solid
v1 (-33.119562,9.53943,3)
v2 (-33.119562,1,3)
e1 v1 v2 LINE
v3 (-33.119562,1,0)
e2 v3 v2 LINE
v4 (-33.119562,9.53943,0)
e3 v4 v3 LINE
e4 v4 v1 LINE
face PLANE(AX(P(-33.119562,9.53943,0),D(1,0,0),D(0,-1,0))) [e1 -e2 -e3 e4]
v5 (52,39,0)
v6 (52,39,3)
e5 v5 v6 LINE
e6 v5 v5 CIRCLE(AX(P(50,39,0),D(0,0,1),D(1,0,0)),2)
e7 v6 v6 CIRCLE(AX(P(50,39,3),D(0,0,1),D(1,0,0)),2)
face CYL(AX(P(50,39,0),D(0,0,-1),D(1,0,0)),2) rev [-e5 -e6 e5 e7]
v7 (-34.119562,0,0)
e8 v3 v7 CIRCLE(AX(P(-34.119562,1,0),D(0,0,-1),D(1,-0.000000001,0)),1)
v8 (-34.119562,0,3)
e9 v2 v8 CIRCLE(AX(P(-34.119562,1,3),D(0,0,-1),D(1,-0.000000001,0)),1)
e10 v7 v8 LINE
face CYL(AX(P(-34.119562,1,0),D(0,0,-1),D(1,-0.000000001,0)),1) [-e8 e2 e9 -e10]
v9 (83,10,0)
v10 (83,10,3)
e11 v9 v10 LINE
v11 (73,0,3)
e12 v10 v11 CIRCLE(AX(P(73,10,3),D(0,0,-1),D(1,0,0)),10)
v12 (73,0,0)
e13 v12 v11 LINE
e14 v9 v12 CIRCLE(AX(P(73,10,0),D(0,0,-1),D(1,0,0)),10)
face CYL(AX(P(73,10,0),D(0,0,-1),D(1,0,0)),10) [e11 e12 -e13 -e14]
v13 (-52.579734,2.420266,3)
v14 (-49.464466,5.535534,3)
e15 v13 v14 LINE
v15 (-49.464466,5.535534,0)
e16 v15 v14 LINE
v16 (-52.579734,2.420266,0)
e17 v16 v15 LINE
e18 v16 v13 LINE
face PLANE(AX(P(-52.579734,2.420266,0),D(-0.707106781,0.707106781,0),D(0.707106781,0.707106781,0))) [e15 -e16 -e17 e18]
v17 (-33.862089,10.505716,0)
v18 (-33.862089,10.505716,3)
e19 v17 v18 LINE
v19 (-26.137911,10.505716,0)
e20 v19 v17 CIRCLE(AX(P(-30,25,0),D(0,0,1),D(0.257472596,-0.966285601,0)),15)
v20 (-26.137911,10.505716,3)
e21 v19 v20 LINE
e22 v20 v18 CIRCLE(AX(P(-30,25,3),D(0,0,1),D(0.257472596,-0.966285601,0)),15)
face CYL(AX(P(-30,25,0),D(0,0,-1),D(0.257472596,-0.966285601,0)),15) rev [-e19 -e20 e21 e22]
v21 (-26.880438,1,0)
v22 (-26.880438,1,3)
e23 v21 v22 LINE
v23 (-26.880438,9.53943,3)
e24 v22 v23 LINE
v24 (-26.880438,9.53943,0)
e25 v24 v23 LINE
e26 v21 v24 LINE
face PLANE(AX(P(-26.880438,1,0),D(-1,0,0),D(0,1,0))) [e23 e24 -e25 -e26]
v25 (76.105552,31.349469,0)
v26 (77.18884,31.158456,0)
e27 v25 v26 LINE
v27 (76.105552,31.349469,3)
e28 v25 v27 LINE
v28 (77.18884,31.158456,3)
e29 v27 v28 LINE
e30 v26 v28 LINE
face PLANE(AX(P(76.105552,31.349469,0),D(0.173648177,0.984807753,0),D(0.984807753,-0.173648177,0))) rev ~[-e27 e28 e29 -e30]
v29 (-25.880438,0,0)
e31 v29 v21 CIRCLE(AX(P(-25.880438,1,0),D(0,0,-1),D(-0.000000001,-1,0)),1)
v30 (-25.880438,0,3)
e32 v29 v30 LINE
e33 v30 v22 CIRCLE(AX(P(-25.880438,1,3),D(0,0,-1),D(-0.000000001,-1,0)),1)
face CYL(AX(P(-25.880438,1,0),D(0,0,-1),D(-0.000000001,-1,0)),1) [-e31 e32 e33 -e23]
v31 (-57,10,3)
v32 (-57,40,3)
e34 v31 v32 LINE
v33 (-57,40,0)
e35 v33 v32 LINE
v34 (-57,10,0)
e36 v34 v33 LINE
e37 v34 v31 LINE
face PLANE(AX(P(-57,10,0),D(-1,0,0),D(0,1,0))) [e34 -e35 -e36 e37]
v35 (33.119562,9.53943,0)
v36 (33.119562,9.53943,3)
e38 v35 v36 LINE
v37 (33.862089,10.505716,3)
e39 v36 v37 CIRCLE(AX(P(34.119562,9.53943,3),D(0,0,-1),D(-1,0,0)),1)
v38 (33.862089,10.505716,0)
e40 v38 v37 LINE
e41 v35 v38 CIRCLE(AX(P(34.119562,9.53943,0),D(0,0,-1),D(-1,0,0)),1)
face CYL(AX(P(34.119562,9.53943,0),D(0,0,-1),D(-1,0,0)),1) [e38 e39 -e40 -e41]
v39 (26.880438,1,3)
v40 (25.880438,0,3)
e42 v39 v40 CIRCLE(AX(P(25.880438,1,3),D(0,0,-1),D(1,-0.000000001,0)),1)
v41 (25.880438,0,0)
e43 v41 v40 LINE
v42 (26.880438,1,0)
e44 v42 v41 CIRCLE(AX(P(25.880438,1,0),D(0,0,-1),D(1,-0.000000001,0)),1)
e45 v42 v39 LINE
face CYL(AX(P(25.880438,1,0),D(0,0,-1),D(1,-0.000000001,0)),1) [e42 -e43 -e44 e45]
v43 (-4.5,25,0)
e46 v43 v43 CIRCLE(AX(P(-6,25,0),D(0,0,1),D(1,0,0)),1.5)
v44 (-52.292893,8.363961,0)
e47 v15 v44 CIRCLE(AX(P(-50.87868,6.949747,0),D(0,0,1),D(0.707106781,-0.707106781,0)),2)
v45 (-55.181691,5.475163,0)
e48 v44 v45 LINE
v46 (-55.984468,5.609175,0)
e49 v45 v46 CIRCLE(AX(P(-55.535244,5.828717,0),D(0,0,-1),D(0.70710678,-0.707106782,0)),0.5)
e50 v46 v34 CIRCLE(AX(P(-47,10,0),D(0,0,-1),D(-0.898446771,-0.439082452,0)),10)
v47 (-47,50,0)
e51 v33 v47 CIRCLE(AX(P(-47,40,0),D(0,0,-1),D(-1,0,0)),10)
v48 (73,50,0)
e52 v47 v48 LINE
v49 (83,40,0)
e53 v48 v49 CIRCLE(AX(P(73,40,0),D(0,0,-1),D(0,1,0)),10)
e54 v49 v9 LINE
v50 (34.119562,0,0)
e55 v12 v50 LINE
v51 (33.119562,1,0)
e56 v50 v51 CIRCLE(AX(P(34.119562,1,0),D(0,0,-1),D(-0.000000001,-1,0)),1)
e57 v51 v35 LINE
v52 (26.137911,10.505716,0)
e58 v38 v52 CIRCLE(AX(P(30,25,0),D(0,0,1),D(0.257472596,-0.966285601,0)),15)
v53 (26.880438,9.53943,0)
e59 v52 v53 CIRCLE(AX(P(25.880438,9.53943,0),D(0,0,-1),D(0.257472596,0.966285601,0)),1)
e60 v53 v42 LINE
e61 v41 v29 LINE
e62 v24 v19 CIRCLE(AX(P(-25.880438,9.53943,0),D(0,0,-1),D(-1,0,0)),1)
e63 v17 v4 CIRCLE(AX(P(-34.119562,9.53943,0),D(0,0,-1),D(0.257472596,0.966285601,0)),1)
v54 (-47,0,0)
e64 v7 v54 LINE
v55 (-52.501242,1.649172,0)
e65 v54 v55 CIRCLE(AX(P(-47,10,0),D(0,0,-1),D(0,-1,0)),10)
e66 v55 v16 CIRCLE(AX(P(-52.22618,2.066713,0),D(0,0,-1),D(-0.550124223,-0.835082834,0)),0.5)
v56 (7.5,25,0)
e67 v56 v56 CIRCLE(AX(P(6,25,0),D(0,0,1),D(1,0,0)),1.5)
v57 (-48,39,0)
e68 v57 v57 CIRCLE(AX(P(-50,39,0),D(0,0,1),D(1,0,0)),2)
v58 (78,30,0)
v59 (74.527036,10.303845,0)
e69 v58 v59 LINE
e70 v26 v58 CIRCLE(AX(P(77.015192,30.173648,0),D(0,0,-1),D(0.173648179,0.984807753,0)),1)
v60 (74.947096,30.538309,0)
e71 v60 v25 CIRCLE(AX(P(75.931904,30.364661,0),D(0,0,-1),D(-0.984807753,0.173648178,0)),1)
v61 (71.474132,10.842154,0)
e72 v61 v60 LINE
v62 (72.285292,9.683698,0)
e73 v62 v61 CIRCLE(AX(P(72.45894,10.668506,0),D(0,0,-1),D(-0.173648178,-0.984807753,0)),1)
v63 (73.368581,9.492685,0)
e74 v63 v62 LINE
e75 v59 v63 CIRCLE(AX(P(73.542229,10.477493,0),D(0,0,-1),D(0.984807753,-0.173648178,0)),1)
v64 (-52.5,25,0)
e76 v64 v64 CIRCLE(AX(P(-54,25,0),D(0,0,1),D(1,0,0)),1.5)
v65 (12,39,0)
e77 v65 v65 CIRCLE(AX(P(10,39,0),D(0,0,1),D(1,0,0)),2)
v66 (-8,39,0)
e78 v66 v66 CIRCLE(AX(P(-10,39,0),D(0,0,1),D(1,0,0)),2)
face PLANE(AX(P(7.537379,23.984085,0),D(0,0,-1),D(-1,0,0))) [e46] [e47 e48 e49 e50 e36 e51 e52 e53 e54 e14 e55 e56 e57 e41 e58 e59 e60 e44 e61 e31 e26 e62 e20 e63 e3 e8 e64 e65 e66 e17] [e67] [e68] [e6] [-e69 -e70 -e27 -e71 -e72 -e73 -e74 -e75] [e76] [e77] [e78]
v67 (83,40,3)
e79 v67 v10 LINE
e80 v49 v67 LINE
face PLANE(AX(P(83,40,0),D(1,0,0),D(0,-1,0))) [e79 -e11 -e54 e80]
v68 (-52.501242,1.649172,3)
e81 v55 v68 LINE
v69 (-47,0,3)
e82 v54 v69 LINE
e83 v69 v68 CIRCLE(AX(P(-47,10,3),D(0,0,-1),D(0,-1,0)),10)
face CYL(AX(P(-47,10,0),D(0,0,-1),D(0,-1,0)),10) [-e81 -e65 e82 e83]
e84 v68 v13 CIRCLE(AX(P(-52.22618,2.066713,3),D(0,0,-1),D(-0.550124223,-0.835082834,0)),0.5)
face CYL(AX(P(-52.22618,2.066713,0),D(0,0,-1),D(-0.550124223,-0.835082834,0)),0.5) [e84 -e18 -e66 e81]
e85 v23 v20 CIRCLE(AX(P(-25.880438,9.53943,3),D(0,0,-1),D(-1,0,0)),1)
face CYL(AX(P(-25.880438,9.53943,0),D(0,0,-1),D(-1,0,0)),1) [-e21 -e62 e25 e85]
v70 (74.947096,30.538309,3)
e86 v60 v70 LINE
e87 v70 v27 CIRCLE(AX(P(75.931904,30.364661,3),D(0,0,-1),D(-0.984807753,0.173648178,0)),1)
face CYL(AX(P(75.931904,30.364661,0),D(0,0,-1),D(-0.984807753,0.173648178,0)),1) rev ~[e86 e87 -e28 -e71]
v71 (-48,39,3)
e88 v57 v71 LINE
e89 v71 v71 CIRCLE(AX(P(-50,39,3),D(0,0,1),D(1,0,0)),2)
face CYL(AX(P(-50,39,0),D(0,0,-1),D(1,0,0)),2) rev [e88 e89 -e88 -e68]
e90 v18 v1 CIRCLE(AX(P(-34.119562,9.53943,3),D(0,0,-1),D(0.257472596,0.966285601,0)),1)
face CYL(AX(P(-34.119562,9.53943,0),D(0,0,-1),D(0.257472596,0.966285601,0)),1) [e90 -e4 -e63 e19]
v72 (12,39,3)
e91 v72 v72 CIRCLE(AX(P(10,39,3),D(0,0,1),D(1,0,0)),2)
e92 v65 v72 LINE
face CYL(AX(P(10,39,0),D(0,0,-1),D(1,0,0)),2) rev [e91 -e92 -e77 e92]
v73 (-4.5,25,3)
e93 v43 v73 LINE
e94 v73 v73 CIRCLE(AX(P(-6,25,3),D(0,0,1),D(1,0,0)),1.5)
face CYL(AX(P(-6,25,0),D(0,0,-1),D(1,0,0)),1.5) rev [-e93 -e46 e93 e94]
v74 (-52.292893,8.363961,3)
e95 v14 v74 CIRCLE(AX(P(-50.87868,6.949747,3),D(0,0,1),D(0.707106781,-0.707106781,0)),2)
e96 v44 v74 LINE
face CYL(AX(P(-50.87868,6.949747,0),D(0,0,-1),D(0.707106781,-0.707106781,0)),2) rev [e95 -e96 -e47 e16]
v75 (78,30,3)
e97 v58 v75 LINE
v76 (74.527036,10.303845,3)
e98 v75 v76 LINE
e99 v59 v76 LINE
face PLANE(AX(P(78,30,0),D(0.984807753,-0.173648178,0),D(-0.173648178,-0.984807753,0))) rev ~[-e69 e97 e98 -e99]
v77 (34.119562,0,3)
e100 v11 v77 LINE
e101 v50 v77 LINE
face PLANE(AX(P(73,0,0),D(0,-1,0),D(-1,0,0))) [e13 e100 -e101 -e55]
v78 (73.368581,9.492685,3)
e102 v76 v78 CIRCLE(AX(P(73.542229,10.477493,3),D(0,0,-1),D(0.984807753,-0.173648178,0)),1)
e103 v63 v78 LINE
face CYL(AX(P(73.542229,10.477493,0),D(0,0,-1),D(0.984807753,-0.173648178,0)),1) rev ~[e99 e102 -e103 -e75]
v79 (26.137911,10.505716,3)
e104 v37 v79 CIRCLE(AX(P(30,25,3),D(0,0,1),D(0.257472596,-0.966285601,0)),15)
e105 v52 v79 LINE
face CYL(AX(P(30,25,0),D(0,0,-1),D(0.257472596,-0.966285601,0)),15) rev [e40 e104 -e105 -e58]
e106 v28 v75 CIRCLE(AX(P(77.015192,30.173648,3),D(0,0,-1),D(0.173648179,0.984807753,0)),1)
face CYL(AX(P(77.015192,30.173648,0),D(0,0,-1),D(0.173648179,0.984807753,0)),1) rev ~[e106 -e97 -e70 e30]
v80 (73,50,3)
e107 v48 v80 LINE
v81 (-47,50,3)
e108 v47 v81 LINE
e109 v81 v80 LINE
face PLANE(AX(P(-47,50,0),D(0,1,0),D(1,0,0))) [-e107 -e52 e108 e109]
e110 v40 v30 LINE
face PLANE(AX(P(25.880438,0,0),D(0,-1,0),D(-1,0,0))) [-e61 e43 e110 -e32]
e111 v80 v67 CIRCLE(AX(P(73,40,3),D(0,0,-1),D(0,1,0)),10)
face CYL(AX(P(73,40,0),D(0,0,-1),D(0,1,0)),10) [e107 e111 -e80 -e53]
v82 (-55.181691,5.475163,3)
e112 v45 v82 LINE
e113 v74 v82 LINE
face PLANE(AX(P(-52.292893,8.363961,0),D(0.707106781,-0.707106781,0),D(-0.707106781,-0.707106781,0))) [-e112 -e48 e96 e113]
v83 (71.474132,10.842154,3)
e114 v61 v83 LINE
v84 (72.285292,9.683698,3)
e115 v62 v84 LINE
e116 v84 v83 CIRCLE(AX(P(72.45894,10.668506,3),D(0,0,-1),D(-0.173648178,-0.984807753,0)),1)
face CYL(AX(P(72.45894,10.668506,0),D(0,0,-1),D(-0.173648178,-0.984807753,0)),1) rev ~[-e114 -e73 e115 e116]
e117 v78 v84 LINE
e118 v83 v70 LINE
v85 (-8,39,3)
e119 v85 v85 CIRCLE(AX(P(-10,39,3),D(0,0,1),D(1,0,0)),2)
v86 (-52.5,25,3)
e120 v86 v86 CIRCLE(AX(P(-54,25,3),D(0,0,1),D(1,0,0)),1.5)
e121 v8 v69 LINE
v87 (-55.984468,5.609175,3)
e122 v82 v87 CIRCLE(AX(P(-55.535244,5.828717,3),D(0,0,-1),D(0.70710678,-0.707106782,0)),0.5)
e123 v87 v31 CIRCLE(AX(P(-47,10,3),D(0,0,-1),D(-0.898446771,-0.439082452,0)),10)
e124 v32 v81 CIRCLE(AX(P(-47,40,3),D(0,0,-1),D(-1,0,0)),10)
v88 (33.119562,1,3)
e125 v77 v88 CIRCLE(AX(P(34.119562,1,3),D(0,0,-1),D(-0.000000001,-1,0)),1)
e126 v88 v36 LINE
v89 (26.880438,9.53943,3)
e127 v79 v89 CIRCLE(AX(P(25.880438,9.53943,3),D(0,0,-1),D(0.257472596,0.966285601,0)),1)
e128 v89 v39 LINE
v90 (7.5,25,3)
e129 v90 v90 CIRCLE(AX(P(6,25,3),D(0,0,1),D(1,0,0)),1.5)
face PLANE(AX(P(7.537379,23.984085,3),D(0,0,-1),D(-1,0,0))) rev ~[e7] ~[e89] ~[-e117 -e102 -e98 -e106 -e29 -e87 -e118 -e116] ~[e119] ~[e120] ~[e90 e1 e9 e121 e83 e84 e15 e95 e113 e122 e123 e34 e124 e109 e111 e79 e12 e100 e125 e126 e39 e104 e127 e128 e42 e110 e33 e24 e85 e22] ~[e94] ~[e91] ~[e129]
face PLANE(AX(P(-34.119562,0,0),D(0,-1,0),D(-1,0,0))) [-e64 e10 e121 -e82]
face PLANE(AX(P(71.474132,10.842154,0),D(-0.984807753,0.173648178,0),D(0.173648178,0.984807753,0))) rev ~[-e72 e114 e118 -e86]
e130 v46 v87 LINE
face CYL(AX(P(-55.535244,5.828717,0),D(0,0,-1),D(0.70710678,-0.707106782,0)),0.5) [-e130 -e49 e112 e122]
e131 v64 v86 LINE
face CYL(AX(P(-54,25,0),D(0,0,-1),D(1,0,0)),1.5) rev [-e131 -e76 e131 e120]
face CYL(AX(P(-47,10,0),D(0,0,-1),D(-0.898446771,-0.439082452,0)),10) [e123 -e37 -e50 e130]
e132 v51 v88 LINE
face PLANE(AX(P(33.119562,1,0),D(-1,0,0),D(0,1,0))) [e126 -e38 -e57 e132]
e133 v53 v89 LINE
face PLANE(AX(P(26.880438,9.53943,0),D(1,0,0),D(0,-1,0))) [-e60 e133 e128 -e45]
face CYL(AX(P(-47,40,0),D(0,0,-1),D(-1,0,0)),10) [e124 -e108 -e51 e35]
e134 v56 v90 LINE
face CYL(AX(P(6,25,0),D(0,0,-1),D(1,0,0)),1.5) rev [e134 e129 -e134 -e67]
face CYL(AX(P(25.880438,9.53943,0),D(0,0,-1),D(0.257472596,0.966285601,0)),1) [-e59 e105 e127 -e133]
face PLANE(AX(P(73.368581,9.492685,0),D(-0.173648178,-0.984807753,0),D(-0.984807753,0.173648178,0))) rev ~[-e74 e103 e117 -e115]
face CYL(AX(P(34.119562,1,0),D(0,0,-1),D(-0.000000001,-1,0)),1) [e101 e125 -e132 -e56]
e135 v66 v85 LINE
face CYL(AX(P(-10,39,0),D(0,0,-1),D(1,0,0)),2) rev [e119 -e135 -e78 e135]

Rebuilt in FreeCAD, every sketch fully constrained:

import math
import FreeCAD as App
import Part
import Sketcher
Q = App.Units.Quantity

doc = App.newDocument("Part")
body = doc.addObject("PartDesign::Body", "Body")

sketch1 = body.newObject("Sketcher::SketchObject", "Sketch")
sketch1.AttachmentSupport = (doc.getObject("XY_Plane"), [""])
sketch1.MapMode = "FlatFace"
sketch1.addGeometry([
    Part.LineSegment(App.Vector(73, 50, 0), App.Vector(-47, 50, 0)),
    Part.ArcOfCircle(Part.Circle(App.Vector(-47, 40, 0), App.Vector(0, 0, 1), 10), math.radians(90), math.radians(180)),
    Part.LineSegment(App.Vector(-57, 40, 0), App.Vector(-57, 10, 0)),
    Part.ArcOfCircle(Part.Circle(App.Vector(-47, 10, 0), App.Vector(0, 0, 1), 10), math.radians(180), math.radians(206)),
    Part.ArcOfCircle(Part.Circle(App.Vector(-55.5, 5.8, 0), App.Vector(0, 0, 1), 0.5), math.radians(-154), math.radians(-45)),
    Part.LineSegment(App.Vector(-55.2, 5.5, 0), App.Vector(-52.3, 8.4, 0)),
    Part.ArcOfCircle(Part.Circle(App.Vector(-50.9, 6.9, 0), App.Vector(0, 0, 1), 2), math.radians(-45), math.radians(135)),
    Part.LineSegment(App.Vector(-49.5, 5.5, 0), App.Vector(-52.6, 2.4, 0)),
    Part.ArcOfCircle(Part.Circle(App.Vector(-52.2, 2.1, 0), App.Vector(0, 0, 1), 0.5), math.radians(135), math.radians(237)),
    Part.ArcOfCircle(Part.Circle(App.Vector(-47, 10, 0), App.Vector(0, 0, 1), 10), math.radians(-123), math.radians(-90)),
    Part.LineSegment(App.Vector(-47, 0, 0), App.Vector(-34.1, 0, 0)),
    Part.ArcOfCircle(Part.Circle(App.Vector(-34.1, 1, 0), App.Vector(0, 0, 1), 1), math.radians(-90), math.radians(0)),
    Part.LineSegment(App.Vector(-33.1, 1, 0), App.Vector(-33.1, 9.5, 0)),
    Part.ArcOfCircle(Part.Circle(App.Vector(-34.1, 9.5, 0), App.Vector(0, 0, 1), 1), math.radians(0), math.radians(75)),
    Part.ArcOfCircle(Part.Circle(App.Vector(-30, 25, 0), App.Vector(0, 0, 1), 15), math.radians(-75), math.radians(255)),
    Part.ArcOfCircle(Part.Circle(App.Vector(-25.9, 9.5, 0), App.Vector(0, 0, 1), 1), math.radians(105), math.radians(180)),
    Part.LineSegment(App.Vector(-26.9, 9.5, 0), App.Vector(-26.9, 1, 0)),
    Part.ArcOfCircle(Part.Circle(App.Vector(-25.9, 1, 0), App.Vector(0, 0, 1), 1), math.radians(-180), math.radians(-90)),
    Part.LineSegment(App.Vector(-25.9, 0, 0), App.Vector(25.9, 0, 0)),
    Part.ArcOfCircle(Part.Circle(App.Vector(25.9, 1, 0), App.Vector(0, 0, 1), 1), math.radians(-90), math.radians(0)),
    Part.LineSegment(App.Vector(26.9, 1, 0), App.Vector(26.9, 9.5, 0)),
    Part.ArcOfCircle(Part.Circle(App.Vector(25.9, 9.5, 0), App.Vector(0, 0, 1), 1), math.radians(0), math.radians(75)),
    Part.ArcOfCircle(Part.Circle(App.Vector(30, 25, 0), App.Vector(0, 0, 1), 15), math.radians(-75), math.radians(255)),
    Part.ArcOfCircle(Part.Circle(App.Vector(34.1, 9.5, 0), App.Vector(0, 0, 1), 1), math.radians(105), math.radians(180)),
    Part.LineSegment(App.Vector(33.1, 9.5, 0), App.Vector(33.1, 1, 0)),
    Part.ArcOfCircle(Part.Circle(App.Vector(34.1, 1, 0), App.Vector(0, 0, 1), 1), math.radians(-180), math.radians(-90)),
    Part.LineSegment(App.Vector(34.1, 0, 0), App.Vector(73, 0, 0)),
    Part.ArcOfCircle(Part.Circle(App.Vector(73, 10, 0), App.Vector(0, 0, 1), 10), math.radians(-90), math.radians(0)),
    Part.LineSegment(App.Vector(83, 10, 0), App.Vector(83, 40, 0)),
    Part.ArcOfCircle(Part.Circle(App.Vector(73, 40, 0), App.Vector(0, 0, 1), 10), math.radians(0), math.radians(90)),
    Part.LineSegment(App.Vector(76.1, 31.3, 0), App.Vector(77.2, 31.2, 0)),
    Part.ArcOfCircle(Part.Circle(App.Vector(77, 30.2, 0), App.Vector(0, 0, 1), 1), math.radians(-10), math.radians(80)),
    Part.LineSegment(App.Vector(78, 30, 0), App.Vector(74.5, 10.3, 0)),
    Part.ArcOfCircle(Part.Circle(App.Vector(73.5, 10.5, 0), App.Vector(0, 0, 1), 1), math.radians(-100), math.radians(-10)),
    Part.LineSegment(App.Vector(73.4, 9.5, 0), App.Vector(72.3, 9.7, 0)),
    Part.ArcOfCircle(Part.Circle(App.Vector(72.5, 10.7, 0), App.Vector(0, 0, 1), 1), math.radians(170), math.radians(260)),
    Part.LineSegment(App.Vector(71.5, 10.8, 0), App.Vector(74.9, 30.5, 0)),
    Part.ArcOfCircle(Part.Circle(App.Vector(75.9, 30.4, 0), App.Vector(0, 0, 1), 1), math.radians(80), math.radians(170)),
    Part.Circle(App.Vector(6, 25, 0), App.Vector(0, 0, 1), 1.5),
    Part.Circle(App.Vector(-6, 25, 0), App.Vector(0, 0, 1), 1.5),
    Part.Circle(App.Vector(-54, 25, 0), App.Vector(0, 0, 1), 1.5),
    Part.Circle(App.Vector(50, 39, 0), App.Vector(0, 0, 1), 2),
    Part.Circle(App.Vector(10, 39, 0), App.Vector(0, 0, 1), 2),
    Part.Circle(App.Vector(-10, 39, 0), App.Vector(0, 0, 1), 2),
    Part.Circle(App.Vector(-50, 39, 0), App.Vector(0, 0, 1), 2),
], False)
sketch1.addConstraint([
    Sketcher.Constraint("Tangent", 0, 2, 1, 1),
    Sketcher.Constraint("Tangent", 1, 2, 2, 1),
    Sketcher.Constraint("Tangent", 2, 2, 3, 1),
    Sketcher.Constraint("Tangent", 3, 2, 4, 1),
    Sketcher.Constraint("Tangent", 4, 2, 5, 1),
    Sketcher.Constraint("Tangent", 5, 2, 6, 2),
    Sketcher.Constraint("Tangent", 6, 1, 7, 1),
    Sketcher.Constraint("Tangent", 7, 2, 8, 1),
    Sketcher.Constraint("Tangent", 8, 2, 9, 1),
    Sketcher.Constraint("Tangent", 9, 2, 10, 1),
    Sketcher.Constraint("Tangent", 10, 2, 11, 1),
    Sketcher.Constraint("Tangent", 11, 2, 12, 1),
    Sketcher.Constraint("Tangent", 12, 2, 13, 1),
    Sketcher.Constraint("Tangent", 13, 2, 14, 2),
    Sketcher.Constraint("Tangent", 14, 1, 15, 1),
    Sketcher.Constraint("Tangent", 15, 2, 16, 1),
    Sketcher.Constraint("Tangent", 16, 2, 17, 1),
    Sketcher.Constraint("Tangent", 17, 2, 18, 1),
    Sketcher.Constraint("Tangent", 18, 2, 19, 1),
    Sketcher.Constraint("Tangent", 19, 2, 20, 1),
    Sketcher.Constraint("Tangent", 20, 2, 21, 1),
    Sketcher.Constraint("Tangent", 21, 2, 22, 2),
    Sketcher.Constraint("Tangent", 22, 1, 23, 1),
    Sketcher.Constraint("Tangent", 23, 2, 24, 1),
    Sketcher.Constraint("Tangent", 24, 2, 25, 1),
    Sketcher.Constraint("Tangent", 25, 2, 26, 1),
    Sketcher.Constraint("Tangent", 26, 2, 27, 1),
    Sketcher.Constraint("Tangent", 27, 2, 28, 1),
    Sketcher.Constraint("Tangent", 28, 2, 29, 1),
    Sketcher.Constraint("Tangent", 29, 2, 0, 1),
    Sketcher.Constraint("Tangent", 30, 2, 31, 2),
    Sketcher.Constraint("Tangent", 31, 1, 32, 1),
    Sketcher.Constraint("Tangent", 32, 2, 33, 2),
    Sketcher.Constraint("Tangent", 33, 1, 34, 1),
    Sketcher.Constraint("Tangent", 34, 2, 35, 2),
    Sketcher.Constraint("Tangent", 35, 1, 36, 1),
    Sketcher.Constraint("Tangent", 36, 2, 37, 2),
    Sketcher.Constraint("Tangent", 37, 1, 30, 1),
    Sketcher.Constraint("Horizontal", 0),
    Sketcher.Constraint("Vertical", 2),
    Sketcher.Constraint("Horizontal", 10),
    Sketcher.Constraint("Vertical", 12),
    Sketcher.Constraint("Vertical", 16),
    Sketcher.Constraint("Horizontal", 18),
    Sketcher.Constraint("Vertical", 20),
    Sketcher.Constraint("Vertical", 24),
    Sketcher.Constraint("Horizontal", 26),
    Sketcher.Constraint("Vertical", 28),
    Sketcher.Constraint("Coincident", 9, 3, 3, 3),
    Sketcher.Constraint("Equal", 1, 3),
    Sketcher.Constraint("Equal", 4, 8),
    Sketcher.Constraint("Equal", 3, 9),
    Sketcher.Constraint("Equal", 11, 13),
    Sketcher.Constraint("Equal", 13, 15),
    Sketcher.Constraint("Equal", 15, 17),
    Sketcher.Constraint("Equal", 17, 19),
    Sketcher.Constraint("Equal", 19, 21),
    Sketcher.Constraint("Equal", 14, 22),
    Sketcher.Constraint("Equal", 21, 23),
    Sketcher.Constraint("Equal", 23, 25),
    Sketcher.Constraint("Equal", 9, 27),
    Sketcher.Constraint("Equal", 27, 29),
    Sketcher.Constraint("Equal", 25, 31),
    Sketcher.Constraint("Equal", 31, 33),
    Sketcher.Constraint("Equal", 33, 35),
    Sketcher.Constraint("Equal", 35, 37),
    Sketcher.Constraint("Equal", 38, 39),
    Sketcher.Constraint("Equal", 39, 40),
    Sketcher.Constraint("Equal", 6, 41),
    Sketcher.Constraint("Equal", 41, 42),
    Sketcher.Constraint("Equal", 42, 43),
    Sketcher.Constraint("Equal", 43, 44),
    Sketcher.Constraint("Symmetric", 17, 2, 18, 2, -1, 1),
    Sketcher.Constraint("Symmetric", 10, 2, 25, 2, -1, 1),
    Sketcher.Constraint("Symmetric", 14, 3, 22, 3, -2),
    Sketcher.Constraint("Symmetric", 38, 3, 39, 3, -2),
    Sketcher.Constraint("Symmetric", 42, 3, 43, 3, -2),
    Sketcher.Constraint("Symmetric", 41, 3, 44, 3, -2),
    Sketcher.Constraint("PointOnObject", 9, 2, -1),
    Sketcher.Constraint("Parallel", 5, 7),
    Sketcher.Constraint("Perpendicular", 30, 32),
    Sketcher.Constraint("Perpendicular", 32, 34),
    Sketcher.Constraint("Perpendicular", 34, 36),
    Sketcher.Constraint("Horizontal", 13, 3, 15, 3),
    Sketcher.Constraint("Horizontal", 22, 3, 38, 3),
    Sketcher.Constraint("Horizontal", 39, 3, 40, 3),
    Sketcher.Constraint("Horizontal", 41, 3, 42, 3),
    Sketcher.Constraint("Diameter", 38, 3.0),
    Sketcher.Constraint("Diameter", 41, 4.0),
    Sketcher.Constraint("Radius", 1, 10.0),
    Sketcher.Constraint("Radius", 11, 1.0),
    Sketcher.Constraint("Radius", 14, 15.0),
    Sketcher.Constraint("Radius", 4, 0.5),
    Sketcher.Constraint("DistanceX", 0, 2, 0, 1, 120.0),
    Sketcher.Constraint("DistanceY", 2, 2, 2, 1, 30.0),
    Sketcher.Constraint("Angle", 5, Q("45 deg")),
    Sketcher.Constraint("Angle", 30, Q("-10 deg")),
    Sketcher.Constraint("Distance", 32, 20.0),
    Sketcher.Constraint("DistanceX", 1, 3, -1, 1, 47.0),
    Sketcher.Constraint("DistanceX", 14, 3, -1, 1, 30.0),
    Sketcher.Constraint("DistanceY", -1, 1, 14, 3, 25.0),
    Sketcher.Constraint("DistanceX", -1, 1, 38, 3, 6.0),
    Sketcher.Constraint("DistanceX", 40, 3, -1, 1, 54.0),
    Sketcher.Constraint("DistanceX", -1, 1, 41, 3, 50.0),
    Sketcher.Constraint("DistanceY", -1, 1, 41, 3, 39.0),
    Sketcher.Constraint("DistanceX", -1, 1, 42, 3, 10.0),
    Sketcher.Constraint("DistanceX", -1, 1, 31, 1, 78.0),
    Sketcher.Constraint("DistanceY", -1, 1, 31, 1, 30.0),
    Sketcher.Constraint("Distance", 30, 1.1),
    Sketcher.Constraint("DistanceX", 10, 1, 10, 2, 12.880438),
    Sketcher.Constraint("DistanceX", 6, 3, -1, 1, 50.87868),
    Sketcher.Constraint("DistanceX", 8, 3, -1, 1, 52.22618),
])
pad1 = body.newObject("PartDesign::Pad", "Pad")
pad1.Profile = sketch1
pad1.Length = 3

doc.recompute()
